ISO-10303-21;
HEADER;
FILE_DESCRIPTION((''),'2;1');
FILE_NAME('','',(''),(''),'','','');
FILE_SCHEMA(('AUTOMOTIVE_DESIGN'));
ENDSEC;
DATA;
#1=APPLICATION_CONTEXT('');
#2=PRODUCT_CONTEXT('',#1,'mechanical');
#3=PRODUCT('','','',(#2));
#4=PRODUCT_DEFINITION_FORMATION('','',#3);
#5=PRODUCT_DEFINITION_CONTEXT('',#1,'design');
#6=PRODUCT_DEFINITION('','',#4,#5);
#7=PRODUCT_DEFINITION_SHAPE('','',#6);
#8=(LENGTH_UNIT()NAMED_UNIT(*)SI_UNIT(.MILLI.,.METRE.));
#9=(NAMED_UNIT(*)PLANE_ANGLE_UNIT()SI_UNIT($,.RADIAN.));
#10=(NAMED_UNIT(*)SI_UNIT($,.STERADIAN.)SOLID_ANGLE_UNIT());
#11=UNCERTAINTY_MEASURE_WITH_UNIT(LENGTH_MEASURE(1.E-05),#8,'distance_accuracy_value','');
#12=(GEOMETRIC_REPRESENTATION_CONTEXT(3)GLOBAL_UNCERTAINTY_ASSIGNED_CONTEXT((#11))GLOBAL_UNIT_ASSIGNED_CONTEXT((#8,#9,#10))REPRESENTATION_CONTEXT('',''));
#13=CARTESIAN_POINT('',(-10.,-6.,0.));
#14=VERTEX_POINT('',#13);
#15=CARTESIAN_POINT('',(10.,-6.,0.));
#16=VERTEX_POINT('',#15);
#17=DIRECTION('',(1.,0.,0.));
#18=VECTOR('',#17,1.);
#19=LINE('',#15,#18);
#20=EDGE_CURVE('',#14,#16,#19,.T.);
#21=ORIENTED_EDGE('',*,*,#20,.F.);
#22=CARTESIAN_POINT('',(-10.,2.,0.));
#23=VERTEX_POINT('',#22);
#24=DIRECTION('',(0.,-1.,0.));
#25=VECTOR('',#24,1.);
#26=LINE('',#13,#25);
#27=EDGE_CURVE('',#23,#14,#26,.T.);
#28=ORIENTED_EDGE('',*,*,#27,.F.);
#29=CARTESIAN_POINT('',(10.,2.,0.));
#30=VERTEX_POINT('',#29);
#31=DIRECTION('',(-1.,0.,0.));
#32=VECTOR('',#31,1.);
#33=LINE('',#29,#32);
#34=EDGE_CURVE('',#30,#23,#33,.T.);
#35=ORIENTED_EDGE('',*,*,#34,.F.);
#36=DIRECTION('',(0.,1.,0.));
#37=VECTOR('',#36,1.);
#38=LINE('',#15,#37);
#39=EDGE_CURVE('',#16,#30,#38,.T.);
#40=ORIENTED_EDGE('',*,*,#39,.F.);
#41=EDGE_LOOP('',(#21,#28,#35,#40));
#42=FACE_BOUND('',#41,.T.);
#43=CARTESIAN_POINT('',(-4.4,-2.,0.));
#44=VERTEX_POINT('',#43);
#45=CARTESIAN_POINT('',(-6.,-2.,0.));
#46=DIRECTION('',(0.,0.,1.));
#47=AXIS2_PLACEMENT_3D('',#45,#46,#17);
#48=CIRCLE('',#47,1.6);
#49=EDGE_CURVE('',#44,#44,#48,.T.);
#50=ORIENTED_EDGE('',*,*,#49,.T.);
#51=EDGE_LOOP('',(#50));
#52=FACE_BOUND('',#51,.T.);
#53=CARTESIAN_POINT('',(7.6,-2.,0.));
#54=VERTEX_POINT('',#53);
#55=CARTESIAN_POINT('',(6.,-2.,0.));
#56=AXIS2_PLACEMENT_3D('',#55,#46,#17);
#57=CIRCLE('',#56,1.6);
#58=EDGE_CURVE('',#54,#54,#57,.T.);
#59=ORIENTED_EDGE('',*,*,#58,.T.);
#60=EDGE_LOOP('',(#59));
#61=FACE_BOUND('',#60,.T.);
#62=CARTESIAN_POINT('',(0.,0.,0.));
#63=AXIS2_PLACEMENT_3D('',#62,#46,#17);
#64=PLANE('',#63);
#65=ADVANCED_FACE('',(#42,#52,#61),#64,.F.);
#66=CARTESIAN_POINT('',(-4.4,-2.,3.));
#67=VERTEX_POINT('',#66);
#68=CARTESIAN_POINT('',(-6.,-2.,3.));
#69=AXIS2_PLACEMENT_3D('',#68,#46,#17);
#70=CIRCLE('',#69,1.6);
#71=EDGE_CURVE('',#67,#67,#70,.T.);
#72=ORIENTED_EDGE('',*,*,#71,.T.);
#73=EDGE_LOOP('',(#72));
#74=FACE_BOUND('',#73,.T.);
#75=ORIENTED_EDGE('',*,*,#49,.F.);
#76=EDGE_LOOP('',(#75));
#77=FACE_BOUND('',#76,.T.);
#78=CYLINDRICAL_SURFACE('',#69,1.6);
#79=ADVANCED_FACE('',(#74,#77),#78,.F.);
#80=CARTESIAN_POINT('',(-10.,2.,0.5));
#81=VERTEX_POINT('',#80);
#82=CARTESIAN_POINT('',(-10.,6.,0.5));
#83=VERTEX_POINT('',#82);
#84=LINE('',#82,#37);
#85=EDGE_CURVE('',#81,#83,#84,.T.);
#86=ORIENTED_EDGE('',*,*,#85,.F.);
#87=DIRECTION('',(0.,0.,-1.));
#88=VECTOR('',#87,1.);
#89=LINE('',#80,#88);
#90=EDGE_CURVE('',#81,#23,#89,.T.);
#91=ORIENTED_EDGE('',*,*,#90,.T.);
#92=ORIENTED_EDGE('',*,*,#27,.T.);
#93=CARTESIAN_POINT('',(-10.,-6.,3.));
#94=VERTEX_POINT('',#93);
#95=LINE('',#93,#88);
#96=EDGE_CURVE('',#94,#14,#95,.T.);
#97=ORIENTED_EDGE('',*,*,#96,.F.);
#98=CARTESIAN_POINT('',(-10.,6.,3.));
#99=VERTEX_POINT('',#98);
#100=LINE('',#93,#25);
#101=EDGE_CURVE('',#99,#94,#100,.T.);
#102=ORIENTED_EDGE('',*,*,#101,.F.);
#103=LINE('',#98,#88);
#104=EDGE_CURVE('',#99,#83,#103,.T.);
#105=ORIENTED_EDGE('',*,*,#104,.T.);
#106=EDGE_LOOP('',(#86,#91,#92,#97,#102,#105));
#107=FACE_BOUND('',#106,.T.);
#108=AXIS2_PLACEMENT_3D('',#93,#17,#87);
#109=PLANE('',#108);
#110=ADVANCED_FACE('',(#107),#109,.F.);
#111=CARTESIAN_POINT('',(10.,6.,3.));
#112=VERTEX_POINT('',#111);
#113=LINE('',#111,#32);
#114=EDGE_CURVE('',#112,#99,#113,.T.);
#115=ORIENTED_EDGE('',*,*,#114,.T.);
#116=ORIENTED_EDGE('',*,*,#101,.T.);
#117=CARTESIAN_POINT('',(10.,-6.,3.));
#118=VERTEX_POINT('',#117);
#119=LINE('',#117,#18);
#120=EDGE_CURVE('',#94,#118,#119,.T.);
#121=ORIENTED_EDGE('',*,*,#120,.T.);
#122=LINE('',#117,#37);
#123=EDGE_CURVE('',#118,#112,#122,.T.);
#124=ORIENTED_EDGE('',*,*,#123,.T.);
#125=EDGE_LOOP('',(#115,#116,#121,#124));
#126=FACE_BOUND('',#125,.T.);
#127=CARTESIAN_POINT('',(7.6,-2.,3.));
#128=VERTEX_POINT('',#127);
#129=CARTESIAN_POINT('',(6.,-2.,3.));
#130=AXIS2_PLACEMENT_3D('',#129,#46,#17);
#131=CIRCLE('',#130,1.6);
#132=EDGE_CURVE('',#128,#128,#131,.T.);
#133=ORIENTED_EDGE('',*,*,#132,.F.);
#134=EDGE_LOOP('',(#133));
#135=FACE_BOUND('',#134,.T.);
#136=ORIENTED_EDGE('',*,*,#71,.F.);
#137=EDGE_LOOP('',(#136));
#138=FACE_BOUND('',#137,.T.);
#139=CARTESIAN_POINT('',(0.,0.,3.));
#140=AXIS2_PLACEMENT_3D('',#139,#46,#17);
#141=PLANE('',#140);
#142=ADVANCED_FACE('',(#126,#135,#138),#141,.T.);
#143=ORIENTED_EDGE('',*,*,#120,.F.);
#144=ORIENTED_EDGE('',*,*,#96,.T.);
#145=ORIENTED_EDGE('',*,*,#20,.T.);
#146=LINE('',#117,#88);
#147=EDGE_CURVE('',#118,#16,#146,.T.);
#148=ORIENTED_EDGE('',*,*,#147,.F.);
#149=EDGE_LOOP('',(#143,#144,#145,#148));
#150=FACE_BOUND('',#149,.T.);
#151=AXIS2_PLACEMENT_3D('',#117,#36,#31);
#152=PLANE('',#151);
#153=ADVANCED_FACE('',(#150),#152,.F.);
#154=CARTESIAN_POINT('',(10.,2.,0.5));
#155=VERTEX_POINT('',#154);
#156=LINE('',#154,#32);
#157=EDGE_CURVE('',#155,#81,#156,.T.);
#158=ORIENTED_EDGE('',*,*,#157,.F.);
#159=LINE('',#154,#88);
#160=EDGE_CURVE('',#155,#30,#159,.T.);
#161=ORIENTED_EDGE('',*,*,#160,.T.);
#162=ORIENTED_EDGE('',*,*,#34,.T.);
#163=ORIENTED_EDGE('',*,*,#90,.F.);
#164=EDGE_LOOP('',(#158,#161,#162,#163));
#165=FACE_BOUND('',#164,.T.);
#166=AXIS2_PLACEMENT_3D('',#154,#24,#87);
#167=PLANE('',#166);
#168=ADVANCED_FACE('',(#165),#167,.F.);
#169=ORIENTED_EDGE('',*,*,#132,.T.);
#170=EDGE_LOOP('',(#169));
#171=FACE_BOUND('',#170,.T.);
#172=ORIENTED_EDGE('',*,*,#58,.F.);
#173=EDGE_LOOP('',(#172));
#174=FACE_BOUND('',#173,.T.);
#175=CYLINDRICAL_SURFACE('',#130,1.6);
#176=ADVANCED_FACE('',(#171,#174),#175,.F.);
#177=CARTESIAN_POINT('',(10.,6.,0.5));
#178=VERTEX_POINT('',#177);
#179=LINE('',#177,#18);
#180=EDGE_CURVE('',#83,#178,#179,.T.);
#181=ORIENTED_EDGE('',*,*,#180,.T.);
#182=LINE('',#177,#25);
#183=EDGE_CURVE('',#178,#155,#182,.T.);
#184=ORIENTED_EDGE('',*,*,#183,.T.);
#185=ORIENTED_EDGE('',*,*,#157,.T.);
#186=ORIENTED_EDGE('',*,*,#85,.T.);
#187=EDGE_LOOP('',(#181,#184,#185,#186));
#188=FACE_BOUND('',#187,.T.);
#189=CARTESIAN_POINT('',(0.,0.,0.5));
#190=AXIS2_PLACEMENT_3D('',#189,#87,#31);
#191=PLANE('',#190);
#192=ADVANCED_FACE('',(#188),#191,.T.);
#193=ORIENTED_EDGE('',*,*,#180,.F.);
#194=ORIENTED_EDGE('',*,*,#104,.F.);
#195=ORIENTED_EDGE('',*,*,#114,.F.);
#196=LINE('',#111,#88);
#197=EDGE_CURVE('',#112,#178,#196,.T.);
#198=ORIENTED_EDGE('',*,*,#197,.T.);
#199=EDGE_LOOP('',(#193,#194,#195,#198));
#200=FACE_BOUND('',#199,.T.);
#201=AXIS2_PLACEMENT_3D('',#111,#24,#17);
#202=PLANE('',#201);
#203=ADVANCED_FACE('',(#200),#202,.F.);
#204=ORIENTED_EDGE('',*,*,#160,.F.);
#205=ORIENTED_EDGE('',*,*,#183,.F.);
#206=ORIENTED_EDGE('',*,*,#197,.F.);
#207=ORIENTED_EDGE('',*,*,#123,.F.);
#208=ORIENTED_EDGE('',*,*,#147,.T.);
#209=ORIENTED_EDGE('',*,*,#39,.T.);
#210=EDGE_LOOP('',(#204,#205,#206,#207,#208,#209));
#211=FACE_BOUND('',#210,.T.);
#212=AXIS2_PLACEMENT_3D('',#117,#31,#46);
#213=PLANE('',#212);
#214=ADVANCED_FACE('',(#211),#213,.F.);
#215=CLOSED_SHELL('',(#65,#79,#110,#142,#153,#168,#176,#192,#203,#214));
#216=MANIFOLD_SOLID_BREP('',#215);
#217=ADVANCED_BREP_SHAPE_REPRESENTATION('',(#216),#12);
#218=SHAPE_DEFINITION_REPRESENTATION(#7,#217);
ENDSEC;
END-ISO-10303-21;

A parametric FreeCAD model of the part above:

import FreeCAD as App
import Part
import Sketcher

V = App.Vector


def add_polygon(sketch, points):
    """Adds a closed chain of lines whose ends are joined by coincident constraints."""
    first, n = sketch.GeometryCount, len(points)
    for a, b in zip(points, points[1:] + points[:1]):
        sketch.addGeometry(Part.LineSegment(App.Vector(*a, 0), App.Vector(*b, 0)), False)
    for i in range(n):
        sketch.addConstraint(Sketcher.Constraint("Coincident", first + i, 2, first + (i + 1) % n, 1))

doc = App.newDocument("Part")
params = doc.addObject("Spreadsheet::Sheet", "Params")
for row, (alias, value) in enumerate([
    ("sketch1_width", "20 mm"),
    ("sketch1_height", "12 mm"),
    ("pad1_length", "3 mm"),
    ("sketch2_width", "20 mm"),
    ("sketch2_height", "4 mm"),
    ("pocket1_length", "0.5 mm"),
    ("sketch3_diameter", "3.2 mm"),
    ("hole_diameter", "3.2 mm"),
], start=1):
    params.set(f"A{row}", alias)
    params.set(f"B{row}", "=" + value)
    params.setAlias(f"B{row}", alias)

body = doc.addObject("PartDesign::Body", "Body")

# Sketch on XY plane
sketch1 = body.newObject("Sketcher::SketchObject", "Sketch")
sketch1.AttachmentSupport = (doc.getObject("XY_Plane"), [""])
sketch1.MapMode = "FlatFace"
add_polygon(sketch1, [(-10, 6), (-10, -6), (10, -6), (10, 6)])  # lines 0-3
sketch1.addConstraint(Sketcher.Constraint("Vertical", 0))
sketch1.addConstraint(Sketcher.Constraint("Horizontal", 1))
sketch1.addConstraint(Sketcher.Constraint("Vertical", 2))
sketch1.addConstraint(Sketcher.Constraint("Horizontal", 3))
sketch1.addConstraint(Sketcher.Constraint("Symmetric", 0, 2, 2, 2, -1, 1))
sketch1.addConstraint(Sketcher.Constraint("DistanceX", 1, 1, 1, 2, 20.0))
sketch1.addConstraint(Sketcher.Constraint("DistanceY", 0, 2, 0, 1, 12.0))
sketch1.setExpression("Constraints[9]", "Params.sketch1_width")
sketch1.setExpression("Constraints[10]", "Params.sketch1_height")
pad1 = body.newObject("PartDesign::Pad", "Pad")
pad1.Profile = sketch1
pad1.setExpression("Length", "Params.pad1_length")

# Sketch on XY plane
sketch2 = body.newObject("Sketcher::SketchObject", "Sketch001")
sketch2.AttachmentSupport = (doc.getObject("XY_Plane"), [""])
sketch2.MapMode = "FlatFace"
add_polygon(sketch2, [(10, 6), (10, 2), (-10, 2), (-10, 6)])  # lines 0-3
sketch2.addConstraint(Sketcher.Constraint("Vertical", 0))
sketch2.addConstraint(Sketcher.Constraint("Horizontal", 1))
sketch2.addConstraint(Sketcher.Constraint("Vertical", 2))
sketch2.addConstraint(Sketcher.Constraint("Horizontal", 3))
sketch2.addConstraint(Sketcher.Constraint("DistanceX", 1, 2, 1, 1, 20.0))
sketch2.addConstraint(Sketcher.Constraint("DistanceY", 0, 2, 0, 1, 4.0))
sketch2.addConstraint(Sketcher.Constraint("DistanceX", -1, 1, 0, 2, 10.0))
sketch2.addConstraint(Sketcher.Constraint("DistanceY", -1, 1, 0, 2, 2.0))
sketch2.setExpression("Constraints[8]", "Params.sketch2_width")
sketch2.setExpression("Constraints[9]", "Params.sketch2_height")
pocket1 = body.newObject("PartDesign::Pocket", "Pocket")
pocket1.Profile = sketch2
pocket1.setExpression("Length", "Params.pocket1_length")
pocket1.Reversed = True

# Sketch on XY plane
sketch3 = body.newObject("Sketcher::SketchObject", "Sketch002")
sketch3.AttachmentSupport = (doc.getObject("XY_Plane"), [""])
sketch3.MapMode = "FlatFace"
sketch3.AttachmentOffset = App.Placement(V(0, 0, 3), App.Rotation())
sketch3.addGeometry(Part.Circle(V(-6, -2, 0), V(0, 0, 1), 1.6), False)
sketch3.addGeometry(Part.Circle(V(6, -2, 0), V(0, 0, 1), 1.6), False)
sketch3.addConstraint(Sketcher.Constraint("Equal", 0, 1))
sketch3.addConstraint(Sketcher.Constraint("Symmetric", 0, 3, 1, 3, -2))
sketch3.addConstraint(Sketcher.Constraint("Diameter", 0, 3.2))
sketch3.addConstraint(Sketcher.Constraint("DistanceX", 0, 3, -1, 1, 6.0))
sketch3.addConstraint(Sketcher.Constraint("DistanceY", 0, 3, -1, 1, 2.0))
sketch3.setExpression("Constraints[2]", "Params.sketch3_diameter")
doc.recompute()
hole = body.newObject("PartDesign::Hole", "Hole")
hole.Profile = sketch3
hole.ThreadType = "None"
hole.setExpression("Diameter", "Params.hole_diameter")
hole.DepthType = "ThroughAll"

doc.recompute()
